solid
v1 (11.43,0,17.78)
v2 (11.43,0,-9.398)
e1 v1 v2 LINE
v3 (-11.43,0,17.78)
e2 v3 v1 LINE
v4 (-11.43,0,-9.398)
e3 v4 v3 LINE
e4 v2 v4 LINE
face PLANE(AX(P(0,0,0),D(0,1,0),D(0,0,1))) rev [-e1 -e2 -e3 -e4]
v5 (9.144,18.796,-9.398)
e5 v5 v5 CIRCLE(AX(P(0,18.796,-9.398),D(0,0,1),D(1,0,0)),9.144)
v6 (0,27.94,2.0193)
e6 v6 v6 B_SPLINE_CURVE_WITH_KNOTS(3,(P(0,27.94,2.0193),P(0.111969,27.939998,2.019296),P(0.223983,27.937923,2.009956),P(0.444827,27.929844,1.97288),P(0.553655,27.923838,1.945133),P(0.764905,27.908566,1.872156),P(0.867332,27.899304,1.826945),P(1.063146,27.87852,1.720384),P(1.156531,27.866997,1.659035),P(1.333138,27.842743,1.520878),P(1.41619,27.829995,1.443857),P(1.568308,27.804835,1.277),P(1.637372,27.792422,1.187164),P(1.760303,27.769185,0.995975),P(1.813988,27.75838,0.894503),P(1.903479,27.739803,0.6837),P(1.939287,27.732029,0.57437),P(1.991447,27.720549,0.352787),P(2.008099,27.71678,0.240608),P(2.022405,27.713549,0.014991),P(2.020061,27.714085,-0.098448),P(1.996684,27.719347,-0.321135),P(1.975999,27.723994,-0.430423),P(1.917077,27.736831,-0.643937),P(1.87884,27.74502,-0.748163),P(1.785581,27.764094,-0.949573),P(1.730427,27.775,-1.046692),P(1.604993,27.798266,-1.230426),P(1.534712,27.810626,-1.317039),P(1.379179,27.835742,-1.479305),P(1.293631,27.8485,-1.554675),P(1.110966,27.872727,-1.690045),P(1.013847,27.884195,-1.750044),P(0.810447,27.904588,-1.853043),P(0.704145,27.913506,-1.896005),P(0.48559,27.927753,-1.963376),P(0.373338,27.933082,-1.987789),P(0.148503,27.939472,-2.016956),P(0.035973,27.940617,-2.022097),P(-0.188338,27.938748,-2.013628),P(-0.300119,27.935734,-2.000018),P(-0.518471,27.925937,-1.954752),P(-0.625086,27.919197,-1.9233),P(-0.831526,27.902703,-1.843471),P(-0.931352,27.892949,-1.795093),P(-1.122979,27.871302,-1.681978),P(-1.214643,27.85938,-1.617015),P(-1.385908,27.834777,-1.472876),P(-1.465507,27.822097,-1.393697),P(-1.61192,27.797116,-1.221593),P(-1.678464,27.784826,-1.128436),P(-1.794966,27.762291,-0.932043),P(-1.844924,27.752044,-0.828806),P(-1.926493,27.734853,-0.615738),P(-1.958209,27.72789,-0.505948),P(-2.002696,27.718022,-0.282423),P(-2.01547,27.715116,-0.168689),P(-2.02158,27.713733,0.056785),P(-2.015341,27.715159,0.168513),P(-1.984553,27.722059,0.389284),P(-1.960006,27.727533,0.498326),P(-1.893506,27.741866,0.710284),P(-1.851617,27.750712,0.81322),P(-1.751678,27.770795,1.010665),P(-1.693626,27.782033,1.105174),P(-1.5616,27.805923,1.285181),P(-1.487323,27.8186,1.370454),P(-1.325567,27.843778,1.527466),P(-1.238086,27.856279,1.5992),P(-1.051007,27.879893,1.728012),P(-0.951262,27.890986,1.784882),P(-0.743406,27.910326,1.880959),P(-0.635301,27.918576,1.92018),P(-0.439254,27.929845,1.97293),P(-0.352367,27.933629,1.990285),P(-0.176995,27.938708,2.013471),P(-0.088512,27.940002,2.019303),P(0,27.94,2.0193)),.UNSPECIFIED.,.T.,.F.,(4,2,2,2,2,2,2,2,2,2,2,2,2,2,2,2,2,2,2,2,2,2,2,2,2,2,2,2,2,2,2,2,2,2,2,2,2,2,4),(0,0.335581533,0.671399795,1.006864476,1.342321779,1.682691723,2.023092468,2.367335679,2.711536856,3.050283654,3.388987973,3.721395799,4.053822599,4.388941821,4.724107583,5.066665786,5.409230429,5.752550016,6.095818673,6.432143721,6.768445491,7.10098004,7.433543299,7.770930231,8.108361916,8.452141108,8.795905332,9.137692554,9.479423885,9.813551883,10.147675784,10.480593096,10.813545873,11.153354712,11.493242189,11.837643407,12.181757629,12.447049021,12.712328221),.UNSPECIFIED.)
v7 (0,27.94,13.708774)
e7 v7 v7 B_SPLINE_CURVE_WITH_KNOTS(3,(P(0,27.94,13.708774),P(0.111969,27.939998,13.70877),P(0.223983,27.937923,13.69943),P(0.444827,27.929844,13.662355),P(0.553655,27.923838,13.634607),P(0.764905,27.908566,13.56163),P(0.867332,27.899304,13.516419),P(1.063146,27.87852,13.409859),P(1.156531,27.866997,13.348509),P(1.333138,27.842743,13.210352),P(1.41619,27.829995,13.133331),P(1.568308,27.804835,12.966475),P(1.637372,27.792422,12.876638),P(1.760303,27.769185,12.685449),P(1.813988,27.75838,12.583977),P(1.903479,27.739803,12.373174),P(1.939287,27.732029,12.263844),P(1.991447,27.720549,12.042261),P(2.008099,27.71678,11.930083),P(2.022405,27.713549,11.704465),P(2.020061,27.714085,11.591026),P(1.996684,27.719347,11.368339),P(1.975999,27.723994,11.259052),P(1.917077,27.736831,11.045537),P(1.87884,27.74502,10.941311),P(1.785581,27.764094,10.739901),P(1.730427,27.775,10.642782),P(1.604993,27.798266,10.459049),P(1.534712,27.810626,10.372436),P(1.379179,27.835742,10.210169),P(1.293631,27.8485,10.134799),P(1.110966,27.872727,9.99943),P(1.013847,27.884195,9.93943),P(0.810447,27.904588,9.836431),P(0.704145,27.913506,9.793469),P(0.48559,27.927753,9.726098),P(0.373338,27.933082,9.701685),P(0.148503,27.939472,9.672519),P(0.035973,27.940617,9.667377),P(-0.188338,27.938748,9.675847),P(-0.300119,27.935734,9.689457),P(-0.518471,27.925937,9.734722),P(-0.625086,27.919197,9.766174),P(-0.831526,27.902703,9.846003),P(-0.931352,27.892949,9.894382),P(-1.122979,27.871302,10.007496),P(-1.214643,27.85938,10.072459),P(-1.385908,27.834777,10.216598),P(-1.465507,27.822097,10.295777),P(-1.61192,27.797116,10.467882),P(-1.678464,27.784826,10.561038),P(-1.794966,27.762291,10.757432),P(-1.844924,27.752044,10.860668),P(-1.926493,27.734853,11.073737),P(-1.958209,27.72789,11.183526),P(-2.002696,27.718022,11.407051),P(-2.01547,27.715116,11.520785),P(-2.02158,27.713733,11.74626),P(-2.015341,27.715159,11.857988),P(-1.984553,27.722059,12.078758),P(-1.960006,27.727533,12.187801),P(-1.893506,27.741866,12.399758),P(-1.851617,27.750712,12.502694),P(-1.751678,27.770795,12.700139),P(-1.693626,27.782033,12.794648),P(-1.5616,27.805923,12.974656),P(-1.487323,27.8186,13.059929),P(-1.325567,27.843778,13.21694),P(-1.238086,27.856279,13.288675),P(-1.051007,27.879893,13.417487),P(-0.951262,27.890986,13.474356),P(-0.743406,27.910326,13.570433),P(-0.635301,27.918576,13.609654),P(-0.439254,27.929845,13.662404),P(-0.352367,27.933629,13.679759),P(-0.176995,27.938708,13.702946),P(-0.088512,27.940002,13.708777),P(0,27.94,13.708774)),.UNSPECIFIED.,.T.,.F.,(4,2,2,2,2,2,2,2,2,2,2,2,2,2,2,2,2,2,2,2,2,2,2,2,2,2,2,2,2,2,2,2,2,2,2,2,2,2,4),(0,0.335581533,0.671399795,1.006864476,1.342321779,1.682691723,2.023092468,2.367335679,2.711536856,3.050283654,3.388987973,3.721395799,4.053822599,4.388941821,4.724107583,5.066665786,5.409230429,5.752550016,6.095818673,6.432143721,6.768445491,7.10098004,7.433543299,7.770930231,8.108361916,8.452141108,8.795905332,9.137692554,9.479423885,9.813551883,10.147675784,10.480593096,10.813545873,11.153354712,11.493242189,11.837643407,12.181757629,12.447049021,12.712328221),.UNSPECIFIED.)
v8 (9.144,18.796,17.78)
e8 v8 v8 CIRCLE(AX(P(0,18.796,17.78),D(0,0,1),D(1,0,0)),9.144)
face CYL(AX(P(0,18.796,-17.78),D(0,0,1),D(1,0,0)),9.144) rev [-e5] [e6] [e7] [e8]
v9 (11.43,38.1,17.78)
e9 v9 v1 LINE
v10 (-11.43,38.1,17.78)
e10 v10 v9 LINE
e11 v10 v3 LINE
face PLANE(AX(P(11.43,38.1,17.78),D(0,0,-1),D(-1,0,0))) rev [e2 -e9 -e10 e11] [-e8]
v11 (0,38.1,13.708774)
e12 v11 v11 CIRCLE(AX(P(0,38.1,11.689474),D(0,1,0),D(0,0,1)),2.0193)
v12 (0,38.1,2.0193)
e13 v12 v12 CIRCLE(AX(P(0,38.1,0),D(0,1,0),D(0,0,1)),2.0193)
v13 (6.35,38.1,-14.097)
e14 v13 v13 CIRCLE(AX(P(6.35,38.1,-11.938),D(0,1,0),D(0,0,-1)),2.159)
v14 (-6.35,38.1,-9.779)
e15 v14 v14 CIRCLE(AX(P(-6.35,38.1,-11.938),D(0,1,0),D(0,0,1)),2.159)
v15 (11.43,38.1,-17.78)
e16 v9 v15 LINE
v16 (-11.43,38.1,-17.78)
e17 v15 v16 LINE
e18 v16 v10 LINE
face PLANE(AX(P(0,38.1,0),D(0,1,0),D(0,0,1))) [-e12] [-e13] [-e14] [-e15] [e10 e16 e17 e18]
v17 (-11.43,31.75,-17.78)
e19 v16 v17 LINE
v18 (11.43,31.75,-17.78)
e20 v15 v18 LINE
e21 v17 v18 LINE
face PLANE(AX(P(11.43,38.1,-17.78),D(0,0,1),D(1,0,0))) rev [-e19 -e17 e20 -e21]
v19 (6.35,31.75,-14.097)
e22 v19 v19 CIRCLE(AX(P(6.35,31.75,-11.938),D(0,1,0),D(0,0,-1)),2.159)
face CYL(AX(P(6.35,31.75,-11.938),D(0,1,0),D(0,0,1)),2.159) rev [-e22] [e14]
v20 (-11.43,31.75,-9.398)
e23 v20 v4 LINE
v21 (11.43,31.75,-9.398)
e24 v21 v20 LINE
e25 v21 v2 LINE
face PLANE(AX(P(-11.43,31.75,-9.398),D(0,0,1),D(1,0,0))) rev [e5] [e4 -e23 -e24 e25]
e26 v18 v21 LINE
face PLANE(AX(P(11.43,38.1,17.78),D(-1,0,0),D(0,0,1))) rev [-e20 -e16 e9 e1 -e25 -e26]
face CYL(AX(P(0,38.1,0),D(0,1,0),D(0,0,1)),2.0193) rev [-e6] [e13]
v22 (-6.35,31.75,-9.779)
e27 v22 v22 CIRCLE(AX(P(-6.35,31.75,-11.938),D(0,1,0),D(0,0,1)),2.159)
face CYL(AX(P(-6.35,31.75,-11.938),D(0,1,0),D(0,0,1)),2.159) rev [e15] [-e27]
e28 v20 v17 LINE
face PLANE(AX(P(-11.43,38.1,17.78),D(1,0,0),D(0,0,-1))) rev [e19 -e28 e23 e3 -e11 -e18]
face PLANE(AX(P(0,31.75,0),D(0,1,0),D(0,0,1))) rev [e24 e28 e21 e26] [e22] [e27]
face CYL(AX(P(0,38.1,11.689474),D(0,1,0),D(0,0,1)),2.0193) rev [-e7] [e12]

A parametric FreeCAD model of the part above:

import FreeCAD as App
import Part
import Sketcher

V = App.Vector
Q = App.Units.Quantity

doc = App.newDocument("Part")
body = doc.addObject("PartDesign::Body", "Body")

# Sketch on XZ plane
sketch1 = body.newObject("Sketcher::SketchObject", "Sketch")
sketch1.AttachmentSupport = (doc.getObject("XZ_Plane"), [""])
sketch1.MapMode = "FlatFace"
sketch1.addGeometry([
    Part.LineSegment(V(-11, -18, 0), V(-11, 18, 0)),
    Part.LineSegment(V(-11, 18, 0), V(11, 18, 0)),
    Part.LineSegment(V(11, 18, 0), V(11, -18, 0)),
    Part.LineSegment(V(11, -18, 0), V(-11, -18, 0)),
], False)
sketch1.addConstraint([
    Sketcher.Constraint("Coincident", 0, 2, 1, 1),
    Sketcher.Constraint("Coincident", 1, 2, 2, 1),
    Sketcher.Constraint("Coincident", 2, 2, 3, 1),
    Sketcher.Constraint("Coincident", 3, 2, 0, 1),
    Sketcher.Constraint("Vertical", 0),
    Sketcher.Constraint("Horizontal", 1),
    Sketcher.Constraint("Vertical", 2),
    Sketcher.Constraint("Horizontal", 3),
    Sketcher.Constraint("Symmetric", 0, 2, 2, 2, -1, 1),
    Sketcher.Constraint("DistanceX", 1, 1, 1, 2, Q("0.9 in")),
    Sketcher.Constraint("DistanceY", 0, 1, 0, 2, Q("1.4 in")),
])
pad1 = body.newObject("PartDesign::Pad", "Pad")
pad1.Profile = sketch1
pad1.Length = Q("1.5 in")
pad1.Reversed = True

# Sketch on XZ plane
sketch2 = body.newObject("Sketcher::SketchObject", "Sketch001")
sketch2.AttachmentSupport = (doc.getObject("XZ_Plane"), [""])
sketch2.MapMode = "FlatFace"
sketch2.addGeometry([
    Part.LineSegment(V(-11, -9, 0), V(-11, -18, 0)),
    Part.LineSegment(V(-11, -18, 0), V(11, -18, 0)),
    Part.LineSegment(V(11, -18, 0), V(11, -9, 0)),
    Part.LineSegment(V(11, -9, 0), V(-11, -9, 0)),
], False)
sketch2.addConstraint([
    Sketcher.Constraint("Coincident", 0, 2, 1, 1),
    Sketcher.Constraint("Coincident", 1, 2, 2, 1),
    Sketcher.Constraint("Coincident", 2, 2, 3, 1),
    Sketcher.Constraint("Coincident", 3, 2, 0, 1),
    Sketcher.Constraint("Vertical", 0),
    Sketcher.Constraint("Horizontal", 1),
    Sketcher.Constraint("Vertical", 2),
    Sketcher.Constraint("Horizontal", 3),
    Sketcher.Constraint("DistanceX", 1, 1, 1, 2, Q("0.9 in")),
    Sketcher.Constraint("DistanceY", 0, 2, 0, 1, Q("0.33 in")),
    Sketcher.Constraint("DistanceY", 0, 2, -1, 1, Q("0.7 in")),
    Sketcher.Constraint("DistanceX", 0, 2, -1, 1, Q("0.45 in")),
])
pocket1 = body.newObject("PartDesign::Pocket", "Pocket")
pocket1.Profile = sketch2
pocket1.Length = Q("1.25 in")

# Sketch on XZ plane
sketch3 = body.newObject("Sketcher::SketchObject", "Sketch002")
sketch3.AttachmentSupport = (doc.getObject("XZ_Plane"), [""])
sketch3.MapMode = "FlatFace"
sketch3.AttachmentOffset = App.Placement(V(0, 0, -1.5 * 25.4), App.Rotation())
sketch3.addGeometry([
    Part.Circle(V(-6.3, -11.9, 0), V(0, 0, 1), 2.2),
    Part.Circle(V(6.3, -11.9, 0), V(0, 0, 1), 2.2),
], False)
sketch3.addConstraint([
    Sketcher.Constraint("Equal", 0, 1),
    Sketcher.Constraint("Symmetric", 0, 3, 1, 3, -2),
    Sketcher.Constraint("Diameter", 0, Q("0.17 in")),
    Sketcher.Constraint("DistanceX", 0, 3, 1, 3, Q("0.5 in")),
    Sketcher.Constraint("DistanceY", 0, 3, -1, 1, Q("0.47 in")),
])
pocket2 = body.newObject("PartDesign::Pocket", "Pocket001")
pocket2.Profile = sketch3
pocket2.Length = Q("0.25 in")
pocket2.Reversed = True

# Sketch on XY plane
sketch4 = body.newObject("Sketcher::SketchObject", "Sketch003")
sketch4.AttachmentSupport = (doc.getObject("XY_Plane"), [""])
sketch4.MapMode = "FlatFace"
sketch4.AttachmentOffset = App.Placement(V(0, 0, 0.7 * 25.4), App.Rotation())
sketch4.addGeometry(Part.Circle(V(0, 19, 0), V(0, 0, 1), 9), False)
sketch4.addConstraint([
    Sketcher.Constraint("PointOnObject", 0, 3, -2),
    Sketcher.Constraint("Diameter", 0, Q("0.72 in")),
    Sketcher.Constraint("DistanceY", -1, 1, 0, 3, Q("0.74 in")),
])
pocket3 = body.newObject("PartDesign::Pocket", "Pocket002")
pocket3.Profile = sketch4
pocket3.Type = "ThroughAll"

# Sketch on XZ plane
sketch5 = body.newObject("Sketcher::SketchObject", "Sketch004")
sketch5.AttachmentSupport = (doc.getObject("XZ_Plane"), [""])
sketch5.MapMode = "FlatFace"
sketch5.AttachmentOffset = App.Placement(V(0, 0, -1.5 * 25.4), App.Rotation())
sketch5.addGeometry(Part.Circle(V(0, 0, 0), V(0, 0, 1), 2), False)
sketch5.addConstraint([
    Sketcher.Constraint("Coincident", 0, 3, -1, 1),
    Sketcher.Constraint("Diameter", 0, Q("0.159 in")),
])
pocket4 = body.newObject("PartDesign::Pocket", "Pocket003")
pocket4.Profile = sketch5
pocket4.Type = "UpToFirst"
pocket4.Reversed = True

# Sketch on XZ plane
sketch6 = body.newObject("Sketcher::SketchObject", "Sketch005")
sketch6.AttachmentSupport = (doc.getObject("XZ_Plane"), [""])
sketch6.MapMode = "FlatFace"
sketch6.AttachmentOffset = App.Placement(V(0, 0, -1.5 * 25.4), App.Rotation())
sketch6.addGeometry(Part.Circle(V(0, 11.7, 0), V(0, 0, 1), 2), False)
sketch6.addConstraint([
    Sketcher.Constraint("PointOnObject", 0, 3, -2),
    Sketcher.Constraint("Diameter", 0, Q("0.159 in")),
    Sketcher.Constraint("DistanceY", -1, 1, 0, 3, 11.689474),
])
pocket5 = body.newObject("PartDesign::Pocket", "Pocket004")
pocket5.Profile = sketch6
pocket5.Type = "UpToFirst"
pocket5.Reversed = True

doc.recompute()
